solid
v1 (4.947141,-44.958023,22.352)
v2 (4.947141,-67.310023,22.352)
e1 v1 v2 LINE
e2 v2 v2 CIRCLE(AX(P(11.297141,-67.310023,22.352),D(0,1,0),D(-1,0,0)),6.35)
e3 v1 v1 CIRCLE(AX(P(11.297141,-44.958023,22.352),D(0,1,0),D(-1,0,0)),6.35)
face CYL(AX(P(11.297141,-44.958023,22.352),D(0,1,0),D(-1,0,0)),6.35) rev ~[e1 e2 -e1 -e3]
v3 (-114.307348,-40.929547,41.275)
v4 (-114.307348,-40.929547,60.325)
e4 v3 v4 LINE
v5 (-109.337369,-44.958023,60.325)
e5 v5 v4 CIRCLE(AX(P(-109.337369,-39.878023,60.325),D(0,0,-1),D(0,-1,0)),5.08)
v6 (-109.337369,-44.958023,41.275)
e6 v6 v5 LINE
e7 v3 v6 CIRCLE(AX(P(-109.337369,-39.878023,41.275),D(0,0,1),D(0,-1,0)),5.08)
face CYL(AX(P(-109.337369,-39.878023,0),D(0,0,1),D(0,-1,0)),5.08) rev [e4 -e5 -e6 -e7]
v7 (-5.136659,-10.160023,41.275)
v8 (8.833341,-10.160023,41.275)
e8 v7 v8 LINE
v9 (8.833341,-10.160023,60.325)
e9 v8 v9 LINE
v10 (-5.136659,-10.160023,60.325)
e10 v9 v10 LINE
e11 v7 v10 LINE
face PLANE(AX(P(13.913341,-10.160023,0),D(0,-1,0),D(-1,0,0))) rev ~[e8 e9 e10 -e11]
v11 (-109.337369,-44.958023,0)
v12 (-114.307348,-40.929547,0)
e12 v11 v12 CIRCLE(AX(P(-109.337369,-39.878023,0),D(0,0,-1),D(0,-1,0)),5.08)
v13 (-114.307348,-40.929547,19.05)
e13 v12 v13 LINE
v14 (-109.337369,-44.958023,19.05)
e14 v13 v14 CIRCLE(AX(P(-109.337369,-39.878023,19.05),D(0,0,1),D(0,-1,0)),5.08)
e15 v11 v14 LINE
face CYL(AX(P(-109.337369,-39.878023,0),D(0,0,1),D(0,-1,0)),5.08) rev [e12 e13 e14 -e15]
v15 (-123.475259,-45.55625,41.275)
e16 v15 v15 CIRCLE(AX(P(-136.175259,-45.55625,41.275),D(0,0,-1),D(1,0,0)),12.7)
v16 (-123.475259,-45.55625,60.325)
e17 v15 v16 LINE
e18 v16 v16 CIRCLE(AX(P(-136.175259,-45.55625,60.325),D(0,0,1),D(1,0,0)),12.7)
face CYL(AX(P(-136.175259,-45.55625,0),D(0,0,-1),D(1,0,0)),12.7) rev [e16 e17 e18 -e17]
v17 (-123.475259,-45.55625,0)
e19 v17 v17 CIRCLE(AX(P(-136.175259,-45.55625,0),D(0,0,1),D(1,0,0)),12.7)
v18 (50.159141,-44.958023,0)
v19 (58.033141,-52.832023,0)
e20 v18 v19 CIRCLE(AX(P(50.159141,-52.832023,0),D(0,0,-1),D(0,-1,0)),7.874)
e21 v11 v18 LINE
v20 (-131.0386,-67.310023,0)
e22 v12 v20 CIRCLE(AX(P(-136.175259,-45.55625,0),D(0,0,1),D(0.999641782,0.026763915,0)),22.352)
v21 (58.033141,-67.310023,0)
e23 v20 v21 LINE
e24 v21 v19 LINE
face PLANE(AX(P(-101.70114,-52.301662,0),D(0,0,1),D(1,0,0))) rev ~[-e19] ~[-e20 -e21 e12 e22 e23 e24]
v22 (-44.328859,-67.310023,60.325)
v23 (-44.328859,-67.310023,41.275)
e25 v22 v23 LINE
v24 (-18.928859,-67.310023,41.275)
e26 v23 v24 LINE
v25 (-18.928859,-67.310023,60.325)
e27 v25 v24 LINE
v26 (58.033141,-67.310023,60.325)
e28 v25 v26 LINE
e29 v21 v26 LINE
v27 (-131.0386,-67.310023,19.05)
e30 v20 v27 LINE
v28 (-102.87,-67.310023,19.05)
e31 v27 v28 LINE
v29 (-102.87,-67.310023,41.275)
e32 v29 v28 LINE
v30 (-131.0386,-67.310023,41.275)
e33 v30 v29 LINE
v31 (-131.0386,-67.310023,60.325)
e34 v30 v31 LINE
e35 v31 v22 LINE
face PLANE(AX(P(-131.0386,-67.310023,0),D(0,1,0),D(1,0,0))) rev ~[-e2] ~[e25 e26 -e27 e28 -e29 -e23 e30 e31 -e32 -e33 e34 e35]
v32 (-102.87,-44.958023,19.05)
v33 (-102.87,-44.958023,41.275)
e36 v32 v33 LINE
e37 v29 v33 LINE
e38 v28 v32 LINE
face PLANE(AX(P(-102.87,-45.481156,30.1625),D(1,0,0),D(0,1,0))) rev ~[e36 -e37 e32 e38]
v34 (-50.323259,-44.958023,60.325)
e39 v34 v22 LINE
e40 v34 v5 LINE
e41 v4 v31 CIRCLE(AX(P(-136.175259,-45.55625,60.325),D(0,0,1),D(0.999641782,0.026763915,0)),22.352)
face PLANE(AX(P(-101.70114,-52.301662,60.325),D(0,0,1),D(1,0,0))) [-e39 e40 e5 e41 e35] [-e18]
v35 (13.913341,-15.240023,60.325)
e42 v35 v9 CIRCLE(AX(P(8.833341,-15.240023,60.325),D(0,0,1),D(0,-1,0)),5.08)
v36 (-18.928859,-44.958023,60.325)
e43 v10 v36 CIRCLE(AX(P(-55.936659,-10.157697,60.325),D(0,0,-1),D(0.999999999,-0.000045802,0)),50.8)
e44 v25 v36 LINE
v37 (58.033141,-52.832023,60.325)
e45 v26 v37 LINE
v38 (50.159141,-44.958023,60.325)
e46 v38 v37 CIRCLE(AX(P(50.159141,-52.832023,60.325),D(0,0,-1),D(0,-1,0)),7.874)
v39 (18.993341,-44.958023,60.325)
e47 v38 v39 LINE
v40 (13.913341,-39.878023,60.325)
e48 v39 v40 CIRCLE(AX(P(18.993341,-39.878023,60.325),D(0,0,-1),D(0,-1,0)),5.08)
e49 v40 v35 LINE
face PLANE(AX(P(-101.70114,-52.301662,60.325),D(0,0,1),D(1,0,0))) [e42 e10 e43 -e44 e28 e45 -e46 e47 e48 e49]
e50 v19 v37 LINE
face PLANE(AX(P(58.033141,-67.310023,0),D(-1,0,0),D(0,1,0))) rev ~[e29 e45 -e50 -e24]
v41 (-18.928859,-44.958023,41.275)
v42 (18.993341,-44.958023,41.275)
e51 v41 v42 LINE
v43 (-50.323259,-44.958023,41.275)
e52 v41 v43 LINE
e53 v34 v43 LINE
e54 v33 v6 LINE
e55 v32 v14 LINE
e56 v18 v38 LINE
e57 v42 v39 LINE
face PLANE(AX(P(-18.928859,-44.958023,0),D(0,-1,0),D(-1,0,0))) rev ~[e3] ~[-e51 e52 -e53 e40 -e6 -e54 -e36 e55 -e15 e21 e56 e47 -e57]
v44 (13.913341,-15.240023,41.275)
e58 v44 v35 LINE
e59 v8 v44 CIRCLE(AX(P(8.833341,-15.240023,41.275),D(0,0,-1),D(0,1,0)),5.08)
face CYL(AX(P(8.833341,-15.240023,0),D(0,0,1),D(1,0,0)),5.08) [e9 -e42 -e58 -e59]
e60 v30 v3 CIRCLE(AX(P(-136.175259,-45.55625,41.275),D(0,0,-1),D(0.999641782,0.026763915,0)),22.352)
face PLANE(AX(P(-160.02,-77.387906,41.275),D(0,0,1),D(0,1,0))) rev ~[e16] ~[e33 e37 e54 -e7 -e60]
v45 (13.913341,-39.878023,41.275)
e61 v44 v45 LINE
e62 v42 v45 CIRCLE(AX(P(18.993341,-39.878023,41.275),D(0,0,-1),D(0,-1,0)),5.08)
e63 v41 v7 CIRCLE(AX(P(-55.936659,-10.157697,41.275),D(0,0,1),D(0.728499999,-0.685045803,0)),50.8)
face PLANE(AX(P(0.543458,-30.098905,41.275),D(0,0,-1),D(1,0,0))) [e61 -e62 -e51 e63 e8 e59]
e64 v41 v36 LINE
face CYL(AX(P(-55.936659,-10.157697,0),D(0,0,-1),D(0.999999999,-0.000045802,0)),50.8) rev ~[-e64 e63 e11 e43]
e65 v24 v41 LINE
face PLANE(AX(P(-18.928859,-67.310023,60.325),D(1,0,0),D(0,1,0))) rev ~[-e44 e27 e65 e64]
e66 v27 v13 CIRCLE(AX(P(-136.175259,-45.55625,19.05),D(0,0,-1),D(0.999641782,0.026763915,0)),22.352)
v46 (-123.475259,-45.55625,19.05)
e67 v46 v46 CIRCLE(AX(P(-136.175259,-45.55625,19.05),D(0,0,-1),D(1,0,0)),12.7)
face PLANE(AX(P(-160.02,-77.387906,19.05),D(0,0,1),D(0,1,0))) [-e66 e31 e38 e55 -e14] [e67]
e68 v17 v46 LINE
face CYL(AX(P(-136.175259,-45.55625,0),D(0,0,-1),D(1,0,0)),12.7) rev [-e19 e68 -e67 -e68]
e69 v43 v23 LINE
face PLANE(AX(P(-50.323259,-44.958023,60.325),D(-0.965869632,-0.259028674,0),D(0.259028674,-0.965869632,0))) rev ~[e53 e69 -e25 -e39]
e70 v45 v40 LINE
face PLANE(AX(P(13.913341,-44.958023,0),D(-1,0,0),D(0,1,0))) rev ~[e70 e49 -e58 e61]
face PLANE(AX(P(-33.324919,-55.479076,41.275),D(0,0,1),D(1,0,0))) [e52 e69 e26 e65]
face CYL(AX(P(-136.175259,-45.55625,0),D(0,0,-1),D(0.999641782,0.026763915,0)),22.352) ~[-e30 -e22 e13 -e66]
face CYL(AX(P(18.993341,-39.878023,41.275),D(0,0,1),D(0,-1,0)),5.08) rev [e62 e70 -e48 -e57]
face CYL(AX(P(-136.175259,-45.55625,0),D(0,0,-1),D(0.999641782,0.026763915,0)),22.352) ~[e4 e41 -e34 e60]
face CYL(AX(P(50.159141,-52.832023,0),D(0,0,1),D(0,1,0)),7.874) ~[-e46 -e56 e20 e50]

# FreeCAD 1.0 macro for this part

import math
import FreeCAD as App
import Part
import Sketcher
Q = App.Units.Quantity


def edges_at(feature, points):
    """Names of the edges that pass closest to the given points."""
    edges = feature.Shape.Edges
    near = lambda p: min(range(len(edges)), key=lambda i: edges[i].distToShape(Part.Vertex(*p))[0])
    return sorted({f"Edge{near(p) + 1}" for p in points})


def add_polygon(sketch, points):
    """Adds a closed chain of lines whose ends are joined by coincident constraints."""
    first, n = sketch.GeometryCount, len(points)
    for a, b in zip(points, points[1:] + points[:1]):
        sketch.addGeometry(Part.LineSegment(App.Vector(*a, 0), App.Vector(*b, 0)), False)
    for i in range(n):
        sketch.addConstraint(Sketcher.Constraint("Coincident", first + i, 2, first + (i + 1) % n, 1))

doc = App.newDocument("Part")
params = doc.addObject("Spreadsheet::Sheet", "Params")
for row, (alias, value) in enumerate([
    ("sketch1_diameter", "1 in"),
    ("sketch1_radius", "2 in"),
    ("sketch1_radius2", "0.88 in"),
    ("sketch1_width", "0.75 in"),
    ("sketch1_height", "0.88 in"),
    ("pad1_length", "2.375 in"),
    ("fillet_radius", "0.2 in"),
    ("fillet2_radius", "0.31 in"),
    ("sketch2_width", "1 in"),
    ("sketch2_height", "0.88 in"),
    ("sketch2_width2", "1.236 in"),
    ("pocket1_length", "0.75 in"),
    ("sketch3_radius", "2 in"),
    ("sketch3_radius2", "0.2 in"),
    ("sketch3_width", "0.55 in"),
    ("sketch3_height", "1.17 in"),
    ("sketch3_width2", "1.293 in"),
    ("pocket2_length", "1.625 in"),
    ("sketch4_diameter", "0.5 in"),
    ("fillet3_radius", "0.2 in"),
    ("fillet4_radius", "0.2 in"),
    ("sketch5_height", "0.875 in"),
    ("pocket4_length", "2.25 in"),
], start=1):
    params.set(f"A{row}", alias)
    params.set(f"B{row}", "=" + value)
    params.setAlias(f"B{row}", alias)

body = doc.addObject("PartDesign::Body", "Body")

sketch1 = body.newObject("Sketcher::SketchObject", "Sketch")
sketch1.AttachmentSupport = (doc.getObject("XY_Plane"), [""])
sketch1.MapMode = "FlatFace"
sketch1.addGeometry([
    Part.ArcOfCircle(Part.Circle(App.Vector(-136, -46, 0), App.Vector(0, 0, 1), 22), math.radians(2), math.radians(283)),
    Part.LineSegment(App.Vector(-131, -67, 0), App.Vector(58, -67, 0)),
    Part.LineSegment(App.Vector(58, -67, 0), App.Vector(58, -45, 0)),
    Part.LineSegment(App.Vector(58, -45, 0), App.Vector(14, -45, 0)),
    Part.LineSegment(App.Vector(14, -45, 0), App.Vector(14, -10, 0)),
    Part.LineSegment(App.Vector(14, -10, 0), App.Vector(-5, -10, 0)),
    Part.ArcOfCircle(Part.Circle(App.Vector(-56, -10, 0), App.Vector(0, 0, 1), 51), math.radians(-43), math.radians(0)),
    Part.LineSegment(App.Vector(-19, -45, 0), App.Vector(-114, -45, 0)),
    Part.Circle(App.Vector(-136, -46, 0), App.Vector(0, 0, 1), 13),
], False)
sketch1.addConstraint([
    Sketcher.Constraint("Coincident", 0, 2, 1, 1),
    Sketcher.Constraint("Coincident", 1, 2, 2, 1),
    Sketcher.Constraint("Coincident", 2, 2, 3, 1),
    Sketcher.Constraint("Coincident", 3, 2, 4, 1),
    Sketcher.Constraint("Coincident", 4, 2, 5, 1),
    Sketcher.Constraint("Coincident", 5, 2, 6, 2),
    Sketcher.Constraint("Coincident", 6, 1, 7, 1),
    Sketcher.Constraint("Coincident", 7, 2, 0, 1),
    Sketcher.Constraint("Horizontal", 1),
    Sketcher.Constraint("Vertical", 2),
    Sketcher.Constraint("Horizontal", 3),
    Sketcher.Constraint("Vertical", 4),
    Sketcher.Constraint("Horizontal", 5),
    Sketcher.Constraint("Horizontal", 7),
    Sketcher.Constraint("Coincident", 8, 3, 0, 3),
    Sketcher.Constraint("Horizontal", 3, 2, 6, 1),
    Sketcher.Constraint("Diameter", 8, Q("1 in")),
    Sketcher.Constraint("Radius", 6, Q("2 in")),
    Sketcher.Constraint("Radius", 0, Q("0.88 in")),
    Sketcher.Constraint("DistanceX", 5, 2, 5, 1, Q("0.75 in")),
    Sketcher.Constraint("DistanceY", 2, 1, 2, 2, Q("0.88 in")),
    Sketcher.Constraint("DistanceY", 4, 1, 4, 2, Q("1.37 in")),
    Sketcher.Constraint("DistanceX", 3, 2, 3, 1, Q("1.737 in")),
    Sketcher.Constraint("DistanceX", 6, 1, 2, 2, Q("3.03 in")),
    Sketcher.Constraint("DistanceX", 0, 2, -1, 1, Q("5.159 in")),
    Sketcher.Constraint("DistanceX", 0, 3, 6, 3, Q("3.159 in")),
    Sketcher.Constraint("DistanceX", 1, 1, 1, 2, 189.071741),
    Sketcher.Constraint("DistanceY", 0, 3, -1, 1, 45.55625),
])
sketch1.setExpression("Constraints[16]", "Params.sketch1_diameter")
sketch1.setExpression("Constraints[17]", "Params.sketch1_radius")
sketch1.setExpression("Constraints[18]", "Params.sketch1_radius2")
sketch1.setExpression("Constraints[19]", "Params.sketch1_width")
sketch1.setExpression("Constraints[20]", "Params.sketch1_height")
pad1 = body.newObject("PartDesign::Pad", "Pad")
pad1.Profile = sketch1
pad1.setExpression("Length", "Params.pad1_length")
doc.recompute()

fillet = body.newObject("PartDesign::Fillet", "Fillet")
fillet.Base = (pad1, edges_at(pad1, [(13.913, -10.16, 30.163)]))
fillet.setExpression("Radius", "Params.fillet_radius")
doc.recompute()

fillet2 = body.newObject("PartDesign::Fillet", "Fillet001")
fillet2.Base = (fillet, edges_at(fillet, [(58.033, -44.958, 30.163)]))
fillet2.setExpression("Radius", "Params.fillet2_radius")

sketch2 = body.newObject("Sketcher::SketchObject", "Sketch001")
sketch2.AttachmentSupport = (doc.getObject("XY_Plane"), [""])
sketch2.MapMode = "FlatFace"
sketch2.AttachmentOffset = App.Placement(App.Vector(0, 0, 2.375 * 25.4), App.Rotation())
add_polygon(sketch2, [(-19, -67), (-19, -45), (-50, -45), (-44, -67)])
sketch2.addConstraint([
    Sketcher.Constraint("Vertical", 0),
    Sketcher.Constraint("Horizontal", 1),
    Sketcher.Constraint("Horizontal", 3),
    Sketcher.Constraint("DistanceX", 3, 1, 3, 2, Q("1 in")),
    Sketcher.Constraint("DistanceY", 0, 1, 0, 2, Q("0.88 in")),
    Sketcher.Constraint("DistanceX", 1, 2, 1, 1, Q("1.236 in")),
    Sketcher.Constraint("DistanceX", 0, 2, -1, 1, 18.928859),
    Sketcher.Constraint("DistanceY", 0, 2, -1, 1, 44.958023),
])
sketch2.setExpression("Constraints[7]", "Params.sketch2_width")
sketch2.setExpression("Constraints[8]", "Params.sketch2_height")
sketch2.setExpression("Constraints[9]", "Params.sketch2_width2")
pocket1 = body.newObject("PartDesign::Pocket", "Pocket")
pocket1.Profile = sketch2
pocket1.setExpression("Length", "Params.pocket1_length")

sketch3 = body.newObject("Sketcher::SketchObject", "Sketch002")
sketch3.AttachmentSupport = (doc.getObject("XY_Plane"), [""])
sketch3.MapMode = "FlatFace"
sketch3.addGeometry([
    Part.LineSegment(App.Vector(14, -15, 0), App.Vector(14, -45, 0)),
    Part.LineSegment(App.Vector(14, -45, 0), App.Vector(-19, -45, 0)),
    Part.ArcOfCircle(Part.Circle(App.Vector(-56, -10, 0), App.Vector(0, 0, 1), 51), math.radians(-43), math.radians(0)),
    Part.LineSegment(App.Vector(-5, -10, 0), App.Vector(9, -10, 0)),
    Part.ArcOfCircle(Part.Circle(App.Vector(9, -15, 0), App.Vector(0, 0, 1), 5), math.radians(0), math.radians(90)),
], False)
sketch3.addConstraint([
    Sketcher.Constraint("Coincident", 0, 2, 1, 1),
    Sketcher.Constraint("Coincident", 1, 2, 2, 1),
    Sketcher.Constraint("Coincident", 2, 2, 3, 1),
    Sketcher.Constraint("Tangent", 3, 2, 4, 2),
    Sketcher.Constraint("Tangent", 4, 1, 0, 1),
    Sketcher.Constraint("Vertical", 0),
    Sketcher.Constraint("Horizontal", 1),
    Sketcher.Constraint("Horizontal", 3),
    Sketcher.Constraint("Radius", 2, Q("2 in")),
    Sketcher.Constraint("Radius", 4, Q("0.2 in")),
    Sketcher.Constraint("DistanceX", 3, 1, 3, 2, Q("0.55 in")),
    Sketcher.Constraint("DistanceY", 0, 2, 0, 1, Q("1.17 in")),
    Sketcher.Constraint("DistanceX", 1, 2, 1, 1, Q("1.293 in")),
    Sketcher.Constraint("DistanceX", 2, 3, -1, 1, 55.936659),
    Sketcher.Constraint("DistanceY", 2, 3, -1, 1, 10.157697),
])
sketch3.setExpression("Constraints[8]", "Params.sketch3_radius")
sketch3.setExpression("Constraints[9]", "Params.sketch3_radius2")
sketch3.setExpression("Constraints[10]", "Params.sketch3_width")
sketch3.setExpression("Constraints[11]", "Params.sketch3_height")
sketch3.setExpression("Constraints[12]", "Params.sketch3_width2")
pocket2 = body.newObject("PartDesign::Pocket", "Pocket001")
pocket2.Profile = sketch3
pocket2.setExpression("Length", "Params.pocket2_length")
pocket2.Reversed = True

sketch4 = body.newObject("Sketcher::SketchObject", "Sketch003")
sketch4.AttachmentSupport = (doc.getObject("XZ_Plane"), [""])
sketch4.MapMode = "FlatFace"
sketch4.AttachmentOffset = App.Placement(App.Vector(0, 0, 44.958023), App.Rotation())
sketch4.addGeometry(Part.Circle(App.Vector(11, 22, 0), App.Vector(0, 0, 1), 6), False)
sketch4.addConstraint([
    Sketcher.Constraint("Diameter", 0, Q("0.5 in")),
    Sketcher.Constraint("DistanceY", -1, 1, 0, 3, Q("0.88 in")),
    Sketcher.Constraint("DistanceX", -1, 1, 0, 3, 11.297141),
])
sketch4.setExpression("Constraints[0]", "Params.sketch4_diameter")
pocket3 = body.newObject("PartDesign::Pocket", "Pocket002")
pocket3.Profile = sketch4
pocket3.Type = "ThroughAll"
pocket3.Reversed = True
doc.recompute()

fillet3 = body.newObject("PartDesign::Fillet", "Fillet002")
fillet3.Base = (pocket3, edges_at(pocket3, [(13.913, -44.958, 50.8)]))
fillet3.setExpression("Radius", "Params.fillet3_radius")
doc.recompute()

fillet4 = body.newObject("PartDesign::Fillet", "Fillet003")
fillet4.Base = (fillet3, edges_at(fillet3, [(-113.831, -44.958, 30.163)]))
fillet4.setExpression("Radius", "Params.fillet4_radius")

sketch5 = body.newObject("Sketcher::SketchObject", "Sketch004")
sketch5.AttachmentSupport = (doc.getObject("YZ_Plane"), [""])
sketch5.MapMode = "FlatFace"
sketch5.AttachmentOffset = App.Placement(App.Vector(0, 0, -6.3 * 25.4), App.Rotation())
add_polygon(sketch5, [(-77, 41), (-77, 19), (-14, 19), (-14, 41)])
sketch5.addConstraint([
    Sketcher.Constraint("Vertical", 0),
    Sketcher.Constraint("Horizontal", 1),
    Sketcher.Constraint("Vertical", 2),
    Sketcher.Constraint("Horizontal", 3),
    Sketcher.Constraint("DistanceY", 0, 2, 0, 1, Q("0.875 in")),
    Sketcher.Constraint("DistanceY", -1, 1, 0, 2, Q("0.75 in")),
    Sketcher.Constraint("DistanceX", 1, 1, 1, 2, 63.813501),
    Sketcher.Constraint("DistanceX", 0, 2, -1, 1, 77.387906),
])
sketch5.setExpression("Constraints[8]", "Params.sketch5_height")
pocket4 = body.newObject("PartDesign::Pocket", "Pocket003")
pocket4.Profile = sketch5
pocket4.setExpression("Length", "Params.pocket4_length")
pocket4.Reversed = True

doc.recompute()
